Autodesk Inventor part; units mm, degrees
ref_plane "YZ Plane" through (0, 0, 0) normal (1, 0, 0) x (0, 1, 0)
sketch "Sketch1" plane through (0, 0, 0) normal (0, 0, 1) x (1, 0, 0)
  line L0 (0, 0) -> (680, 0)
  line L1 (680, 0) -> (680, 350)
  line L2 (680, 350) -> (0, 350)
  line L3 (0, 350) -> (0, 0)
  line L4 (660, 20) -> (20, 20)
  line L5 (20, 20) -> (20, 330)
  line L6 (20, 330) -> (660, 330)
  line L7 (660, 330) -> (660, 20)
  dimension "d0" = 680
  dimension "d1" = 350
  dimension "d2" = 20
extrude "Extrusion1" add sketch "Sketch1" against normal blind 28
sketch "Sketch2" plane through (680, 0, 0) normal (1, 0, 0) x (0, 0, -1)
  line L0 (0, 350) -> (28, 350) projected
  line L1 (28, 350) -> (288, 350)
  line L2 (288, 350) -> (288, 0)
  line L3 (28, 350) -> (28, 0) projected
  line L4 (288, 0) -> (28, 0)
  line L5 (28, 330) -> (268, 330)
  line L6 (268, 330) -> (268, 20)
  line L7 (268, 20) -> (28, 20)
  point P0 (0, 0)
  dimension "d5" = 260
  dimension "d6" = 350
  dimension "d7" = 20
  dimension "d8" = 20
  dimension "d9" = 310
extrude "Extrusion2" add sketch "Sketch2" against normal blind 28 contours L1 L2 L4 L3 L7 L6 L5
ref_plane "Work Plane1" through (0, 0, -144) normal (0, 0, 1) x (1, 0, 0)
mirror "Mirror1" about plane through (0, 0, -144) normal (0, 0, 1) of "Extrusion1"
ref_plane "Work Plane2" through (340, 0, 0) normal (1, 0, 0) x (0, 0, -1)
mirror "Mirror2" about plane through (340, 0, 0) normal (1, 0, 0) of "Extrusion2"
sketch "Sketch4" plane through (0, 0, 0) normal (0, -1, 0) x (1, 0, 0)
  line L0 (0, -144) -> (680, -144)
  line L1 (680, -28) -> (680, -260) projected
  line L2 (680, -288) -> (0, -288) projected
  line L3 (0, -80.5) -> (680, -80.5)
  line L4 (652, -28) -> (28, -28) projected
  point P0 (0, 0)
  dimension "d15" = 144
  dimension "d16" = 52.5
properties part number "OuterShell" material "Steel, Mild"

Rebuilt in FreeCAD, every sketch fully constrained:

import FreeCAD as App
import Part
import Sketcher

V = App.Vector
Q = App.Units.Quantity

doc = App.newDocument("Part")
body = doc.addObject("PartDesign::Body", "Body")

# Sketch on XY plane
sketch1 = body.newObject("Sketcher::SketchObject", "Sketch")
sketch1.AttachmentSupport = (doc.getObject("XY_Plane"), [""])
sketch1.MapMode = "FlatFace"
sketch1.addGeometry([
    Part.LineSegment(V(0, 350, 0), V(0, 0, 0)),  # 0
    Part.LineSegment(V(0, 0, 0), V(680, 0, 0)),  # 1
    Part.LineSegment(V(680, 0, 0), V(680, 350, 0)),  # 2
    Part.LineSegment(V(680, 350, 0), V(0, 350, 0)),  # 3
    Part.LineSegment(V(660, 330, 0), V(660, 20, 0)),  # 4
    Part.LineSegment(V(660, 20, 0), V(20, 20, 0)),  # 5
    Part.LineSegment(V(20, 20, 0), V(20, 330, 0)),  # 6
    Part.LineSegment(V(20, 330, 0), V(660, 330, 0)),  # 7
], False)
sketch1.addConstraint([
    Sketcher.Constraint("Coincident", 0, 2, 1, 1),
    Sketcher.Constraint("Coincident", 1, 2, 2, 1),
    Sketcher.Constraint("Coincident", 2, 2, 3, 1),
    Sketcher.Constraint("Coincident", 3, 2, 0, 1),
    Sketcher.Constraint("Coincident", 4, 2, 5, 1),
    Sketcher.Constraint("Coincident", 5, 2, 6, 1),
    Sketcher.Constraint("Coincident", 6, 2, 7, 1),
    Sketcher.Constraint("Coincident", 7, 2, 4, 1),
    Sketcher.Constraint("Vertical", 0),
    Sketcher.Constraint("Horizontal", 1),
    Sketcher.Constraint("Vertical", 2),
    Sketcher.Constraint("Horizontal", 3),
    Sketcher.Constraint("Vertical", 4),
    Sketcher.Constraint("Horizontal", 5),
    Sketcher.Constraint("Vertical", 6),
    Sketcher.Constraint("Horizontal", 7),
    Sketcher.Constraint("Coincident", 0, 2, -1, 1),
    Sketcher.Constraint("DistanceX", 1, 1, 1, 2, Q("680 mm")),
    Sketcher.Constraint("DistanceY", 0, 2, 0, 1, Q("350 mm")),
    Sketcher.Constraint("DistanceY", -1, 1, 4, 2, Q("20 mm")),
    Sketcher.Constraint("DistanceX", -1, 1, 5, 2, Q("20 mm")),
    Sketcher.Constraint("DistanceX", 4, 2, 1, 2, Q("20 mm")),
    Sketcher.Constraint("DistanceY", 6, 2, 3, 2, Q("20 mm")),
])
pad1 = body.newObject("PartDesign::Pad", "Pad")
pad1.Profile = sketch1
pad1.Length = 28
pad1.Reversed = True

# Sketch on YZ plane
sketch2 = body.newObject("Sketcher::SketchObject", "Sketch001")
sketch2.AttachmentSupport = (doc.getObject("YZ_Plane"), [""])
sketch2.MapMode = "FlatFace"
sketch2.AttachmentOffset = App.Placement(V(0, 0, 680), App.Rotation())
sketch2.addGeometry([
    Part.LineSegment(V(350, -288, 0), V(350, -28, 0)),  # 0
    Part.LineSegment(V(350, -28, 0), V(330, -28, 0)),  # 1
    Part.LineSegment(V(330, -28, 0), V(330, -268, 0)),  # 2
    Part.LineSegment(V(330, -268, 0), V(20, -268, 0)),  # 3
    Part.LineSegment(V(20, -268, 0), V(20, -28, 0)),  # 4
    Part.LineSegment(V(20, -28, 0), V(0, -28, 0)),  # 5
    Part.LineSegment(V(0, -28, 0), V(0, -288, 0)),  # 6
    Part.LineSegment(V(0, -288, 0), V(350, -288, 0)),  # 7
], False)
sketch2.addConstraint([
    Sketcher.Constraint("Coincident", 0, 2, 1, 1),
    Sketcher.Constraint("Coincident", 1, 2, 2, 1),
    Sketcher.Constraint("Coincident", 2, 2, 3, 1),
    Sketcher.Constraint("Coincident", 3, 2, 4, 1),
    Sketcher.Constraint("Coincident", 4, 2, 5, 1),
    Sketcher.Constraint("Coincident", 5, 2, 6, 1),
    Sketcher.Constraint("Coincident", 6, 2, 7, 1),
    Sketcher.Constraint("Coincident", 7, 2, 0, 1),
    Sketcher.Constraint("Vertical", 0),
    Sketcher.Constraint("Horizontal", 1),
    Sketcher.Constraint("Vertical", 2),
    Sketcher.Constraint("Horizontal", 3),
    Sketcher.Constraint("Vertical", 4),
    Sketcher.Constraint("Horizontal", 5),
    Sketcher.Constraint("Vertical", 6),
    Sketcher.Constraint("Horizontal", 7),
    Sketcher.Constraint("PointOnObject", 5, 2, -2),
    Sketcher.Constraint("Horizontal", 1, 2, 4, 2),
    Sketcher.Constraint("Equal", 1, 5),
    Sketcher.Constraint("DistanceX", 1, 2, 1, 1, Q("20 mm")),
    Sketcher.Constraint("DistanceX", 3, 2, 3, 1, Q("310 mm")),
    Sketcher.Constraint("DistanceY", 0, 1, 0, 2, Q("260 mm")),
    Sketcher.Constraint("DistanceY", 6, 2, 3, 2, Q("20 mm")),
    Sketcher.Constraint("DistanceY", 0, 2, -1, 1, Q("28 mm")),
])
pad2 = body.newObject("PartDesign::Pad", "Pad001")
pad2.Profile = sketch2
pad2.Length = 28
pad2.Reversed = True
doc.recompute()

datumplane = body.newObject("PartDesign::Plane", "DatumPlane")
datumplane.AttachmentSupport = (doc.getObject("XY_Plane"), [""])
datumplane.MapMode = "FlatFace"
datumplane.AttachmentOffset = App.Placement(V(0, 0, -144), App.Rotation())
mirrored = body.newObject("PartDesign::Mirrored", "Mirrored")
mirrored.Originals = [pad1]
mirrored.MirrorPlane = (datumplane, [""])
body.Tip = mirrored
doc.recompute()

datumplane2 = body.newObject("PartDesign::Plane", "DatumPlane001")
datumplane2.AttachmentSupport = (doc.getObject("YZ_Plane"), [""])
datumplane2.MapMode = "FlatFace"
datumplane2.AttachmentOffset = App.Placement(V(0, 0, 340), App.Rotation())
mirrored2 = body.newObject("PartDesign::Mirrored", "Mirrored001")
mirrored2.Originals = [pad2]
mirrored2.MirrorPlane = (datumplane2, [""])
body.Tip = mirrored2

doc.recompute()
